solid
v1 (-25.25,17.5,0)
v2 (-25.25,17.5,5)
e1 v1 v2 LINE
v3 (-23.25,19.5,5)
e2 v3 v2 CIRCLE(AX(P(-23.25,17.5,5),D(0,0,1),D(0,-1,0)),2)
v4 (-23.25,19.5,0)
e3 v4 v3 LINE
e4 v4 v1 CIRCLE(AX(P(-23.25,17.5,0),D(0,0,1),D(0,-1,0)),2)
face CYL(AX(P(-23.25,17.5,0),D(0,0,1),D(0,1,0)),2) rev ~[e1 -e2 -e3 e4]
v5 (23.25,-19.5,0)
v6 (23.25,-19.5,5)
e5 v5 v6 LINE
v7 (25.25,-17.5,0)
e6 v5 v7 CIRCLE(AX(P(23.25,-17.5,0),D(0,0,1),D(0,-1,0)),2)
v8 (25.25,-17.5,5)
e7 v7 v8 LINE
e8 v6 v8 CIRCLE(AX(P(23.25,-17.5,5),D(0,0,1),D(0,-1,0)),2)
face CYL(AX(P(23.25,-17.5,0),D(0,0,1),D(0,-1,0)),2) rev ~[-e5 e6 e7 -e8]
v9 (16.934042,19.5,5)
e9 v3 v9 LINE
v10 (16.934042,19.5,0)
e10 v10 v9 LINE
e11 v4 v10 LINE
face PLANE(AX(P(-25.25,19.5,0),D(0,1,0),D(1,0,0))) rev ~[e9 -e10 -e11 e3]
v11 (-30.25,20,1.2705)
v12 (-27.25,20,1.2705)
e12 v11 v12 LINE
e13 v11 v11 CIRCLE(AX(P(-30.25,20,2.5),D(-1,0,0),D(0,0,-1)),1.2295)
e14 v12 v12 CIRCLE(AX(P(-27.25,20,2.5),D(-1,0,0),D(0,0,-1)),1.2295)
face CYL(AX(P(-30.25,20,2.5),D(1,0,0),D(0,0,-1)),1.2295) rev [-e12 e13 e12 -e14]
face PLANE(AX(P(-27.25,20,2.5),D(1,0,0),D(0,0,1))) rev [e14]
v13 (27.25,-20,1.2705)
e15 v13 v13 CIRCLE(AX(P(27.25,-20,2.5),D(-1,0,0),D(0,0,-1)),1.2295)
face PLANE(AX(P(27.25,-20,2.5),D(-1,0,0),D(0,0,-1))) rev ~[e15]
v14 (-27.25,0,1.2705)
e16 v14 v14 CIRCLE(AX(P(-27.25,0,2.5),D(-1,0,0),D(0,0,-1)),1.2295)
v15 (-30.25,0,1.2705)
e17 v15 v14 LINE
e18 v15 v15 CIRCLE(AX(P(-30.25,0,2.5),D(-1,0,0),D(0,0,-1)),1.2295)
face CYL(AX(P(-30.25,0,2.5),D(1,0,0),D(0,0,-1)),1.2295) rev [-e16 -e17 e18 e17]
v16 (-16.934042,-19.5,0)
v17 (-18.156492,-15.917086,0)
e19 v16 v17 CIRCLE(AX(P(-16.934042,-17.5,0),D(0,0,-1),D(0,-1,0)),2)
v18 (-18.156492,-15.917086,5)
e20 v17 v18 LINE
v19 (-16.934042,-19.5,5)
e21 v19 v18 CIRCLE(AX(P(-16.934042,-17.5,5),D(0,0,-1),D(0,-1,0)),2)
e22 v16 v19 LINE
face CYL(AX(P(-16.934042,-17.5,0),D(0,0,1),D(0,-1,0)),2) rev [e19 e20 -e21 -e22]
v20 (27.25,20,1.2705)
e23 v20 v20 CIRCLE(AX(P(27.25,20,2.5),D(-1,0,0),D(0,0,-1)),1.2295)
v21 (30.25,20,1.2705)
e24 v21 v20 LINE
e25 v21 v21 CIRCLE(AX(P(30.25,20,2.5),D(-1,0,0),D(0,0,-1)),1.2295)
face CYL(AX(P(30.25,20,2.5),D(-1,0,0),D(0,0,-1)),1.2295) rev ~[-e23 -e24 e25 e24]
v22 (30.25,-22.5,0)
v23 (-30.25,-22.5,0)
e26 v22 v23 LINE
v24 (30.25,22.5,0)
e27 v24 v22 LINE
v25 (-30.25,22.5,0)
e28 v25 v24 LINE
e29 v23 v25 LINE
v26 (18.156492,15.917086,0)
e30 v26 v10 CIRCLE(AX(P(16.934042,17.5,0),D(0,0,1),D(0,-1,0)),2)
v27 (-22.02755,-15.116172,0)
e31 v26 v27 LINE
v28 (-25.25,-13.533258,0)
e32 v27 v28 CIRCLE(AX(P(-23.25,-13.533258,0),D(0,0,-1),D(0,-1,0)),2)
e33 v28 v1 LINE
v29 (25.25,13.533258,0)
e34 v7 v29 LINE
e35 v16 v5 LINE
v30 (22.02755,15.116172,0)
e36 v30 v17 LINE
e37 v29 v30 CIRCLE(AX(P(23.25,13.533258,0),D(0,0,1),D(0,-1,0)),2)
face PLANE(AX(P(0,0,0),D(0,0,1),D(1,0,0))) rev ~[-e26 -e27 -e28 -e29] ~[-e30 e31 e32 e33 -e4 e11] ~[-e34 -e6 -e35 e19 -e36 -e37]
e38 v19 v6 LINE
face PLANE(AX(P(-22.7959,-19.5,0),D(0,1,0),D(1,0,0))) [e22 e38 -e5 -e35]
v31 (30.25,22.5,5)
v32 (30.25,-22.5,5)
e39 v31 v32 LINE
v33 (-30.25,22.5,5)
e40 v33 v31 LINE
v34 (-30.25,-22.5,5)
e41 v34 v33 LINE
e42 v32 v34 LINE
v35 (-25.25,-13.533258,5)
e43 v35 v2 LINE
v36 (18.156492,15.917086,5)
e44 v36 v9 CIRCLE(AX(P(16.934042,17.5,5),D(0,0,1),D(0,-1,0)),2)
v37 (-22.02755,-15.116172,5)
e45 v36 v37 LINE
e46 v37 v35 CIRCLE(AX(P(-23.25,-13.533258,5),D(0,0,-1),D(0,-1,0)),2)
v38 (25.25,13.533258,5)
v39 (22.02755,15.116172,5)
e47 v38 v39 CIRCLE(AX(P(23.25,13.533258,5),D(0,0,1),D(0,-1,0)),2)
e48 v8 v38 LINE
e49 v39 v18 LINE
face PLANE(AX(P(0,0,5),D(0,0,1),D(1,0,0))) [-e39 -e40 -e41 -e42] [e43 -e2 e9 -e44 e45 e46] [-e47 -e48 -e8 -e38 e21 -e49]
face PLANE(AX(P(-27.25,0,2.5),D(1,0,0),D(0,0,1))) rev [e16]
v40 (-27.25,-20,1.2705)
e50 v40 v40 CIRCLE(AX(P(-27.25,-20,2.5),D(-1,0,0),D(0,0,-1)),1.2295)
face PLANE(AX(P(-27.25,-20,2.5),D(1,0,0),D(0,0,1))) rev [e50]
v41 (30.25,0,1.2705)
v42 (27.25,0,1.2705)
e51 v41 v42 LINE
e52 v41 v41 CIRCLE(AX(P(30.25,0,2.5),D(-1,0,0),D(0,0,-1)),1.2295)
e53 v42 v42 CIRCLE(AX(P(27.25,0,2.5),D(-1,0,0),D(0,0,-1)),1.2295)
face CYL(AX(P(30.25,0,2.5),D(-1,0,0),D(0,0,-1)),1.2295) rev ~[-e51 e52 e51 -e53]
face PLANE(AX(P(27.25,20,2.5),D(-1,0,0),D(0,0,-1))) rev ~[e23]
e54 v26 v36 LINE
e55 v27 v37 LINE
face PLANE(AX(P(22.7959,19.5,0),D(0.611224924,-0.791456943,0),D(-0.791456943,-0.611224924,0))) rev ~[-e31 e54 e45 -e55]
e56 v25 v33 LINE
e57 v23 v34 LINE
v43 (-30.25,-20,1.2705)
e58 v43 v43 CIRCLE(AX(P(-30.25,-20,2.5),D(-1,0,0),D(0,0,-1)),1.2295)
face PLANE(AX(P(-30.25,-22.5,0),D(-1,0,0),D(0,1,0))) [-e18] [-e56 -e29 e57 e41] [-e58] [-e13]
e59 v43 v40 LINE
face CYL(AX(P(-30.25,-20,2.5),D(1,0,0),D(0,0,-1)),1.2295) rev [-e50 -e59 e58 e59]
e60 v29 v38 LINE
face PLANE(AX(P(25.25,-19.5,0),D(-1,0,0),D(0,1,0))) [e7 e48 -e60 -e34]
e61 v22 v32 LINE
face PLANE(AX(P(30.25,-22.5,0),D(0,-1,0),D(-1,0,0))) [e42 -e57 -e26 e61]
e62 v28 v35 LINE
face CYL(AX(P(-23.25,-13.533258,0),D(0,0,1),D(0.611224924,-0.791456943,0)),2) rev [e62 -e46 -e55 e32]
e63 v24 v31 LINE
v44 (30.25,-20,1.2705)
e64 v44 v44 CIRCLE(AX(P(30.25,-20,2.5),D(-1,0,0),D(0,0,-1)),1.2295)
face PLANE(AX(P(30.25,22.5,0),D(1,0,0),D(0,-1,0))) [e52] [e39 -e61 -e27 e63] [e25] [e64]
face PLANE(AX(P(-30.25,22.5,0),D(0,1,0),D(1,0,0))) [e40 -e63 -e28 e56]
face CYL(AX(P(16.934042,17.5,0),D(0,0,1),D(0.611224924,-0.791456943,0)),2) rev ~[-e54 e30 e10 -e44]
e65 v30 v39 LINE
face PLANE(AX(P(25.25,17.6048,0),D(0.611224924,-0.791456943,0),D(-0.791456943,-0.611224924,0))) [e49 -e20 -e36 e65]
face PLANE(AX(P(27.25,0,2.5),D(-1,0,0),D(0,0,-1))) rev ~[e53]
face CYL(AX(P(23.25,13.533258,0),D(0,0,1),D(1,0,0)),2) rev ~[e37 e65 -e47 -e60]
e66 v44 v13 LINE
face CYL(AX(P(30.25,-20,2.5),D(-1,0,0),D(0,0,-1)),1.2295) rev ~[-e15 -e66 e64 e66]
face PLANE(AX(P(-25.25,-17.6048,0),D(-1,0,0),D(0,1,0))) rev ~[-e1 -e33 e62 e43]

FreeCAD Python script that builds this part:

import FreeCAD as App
import Part
import Sketcher


def edges_at(feature, points):
    """Names of the edges that pass closest to the given points."""
    edges = feature.Shape.Edges
    near = lambda p: min(range(len(edges)), key=lambda i: edges[i].distToShape(Part.Vertex(*p))[0])
    return sorted({f"Edge{near(p) + 1}" for p in points})


def add_polygon(sketch, points):
    """Adds a closed chain of lines whose ends are joined by coincident constraints."""
    first, n = sketch.GeometryCount, len(points)
    for a, b in zip(points, points[1:] + points[:1]):
        sketch.addGeometry(Part.LineSegment(App.Vector(*a, 0), App.Vector(*b, 0)), False)
    for i in range(n):
        sketch.addConstraint(Sketcher.Constraint("Coincident", first + i, 2, first + (i + 1) % n, 1))

doc = App.newDocument("Part")
body = doc.addObject("PartDesign::Body", "Body")

sketch1 = body.newObject("Sketcher::SketchObject", "Sketch")
sketch1.AttachmentSupport = (doc.getObject("XY_Plane"), [""])
sketch1.MapMode = "FlatFace"
add_polygon(sketch1, [(30.25, 22.5), (-30.25, 22.5), (-30.25, -22.5), (30.25, -22.5)])
add_polygon(sketch1, [(25.25, -19.5), (-22.7959, -19.5), (25.25, 17.6048)])
add_polygon(sketch1, [(22.7959, 19.5), (-25.25, -17.6048), (-25.25, 19.5)])
sketch1.addConstraint([
    Sketcher.Constraint("Horizontal", 0),
    Sketcher.Constraint("Vertical", 1),
    Sketcher.Constraint("Horizontal", 2),
    Sketcher.Constraint("Vertical", 3),
    Sketcher.Constraint("Horizontal", 4),
    Sketcher.Constraint("Vertical", 6),
    Sketcher.Constraint("Vertical", 8),
    Sketcher.Constraint("Horizontal", 9),
    Sketcher.Constraint("Symmetric", 0, 2, 2, 2, -1, 1),
    Sketcher.Constraint("Symmetric", 5, 2, 7, 2, -1, 1),
    Sketcher.Constraint("Symmetric", 4, 2, 9, 2, -1, 1),
    Sketcher.Constraint("DistanceX", 0, 2, 0, 1, 60.5),
    Sketcher.Constraint("DistanceY", 1, 2, 4, 2, 3.0),
    Sketcher.Constraint("DistanceX", 5, 2, 3, 2, 5.0),
    Sketcher.Constraint("DistanceY", 1, 2, 1, 1, 45.0),
    Sketcher.Constraint("DistanceX", 4, 2, 4, 1, 48.046),
    Sketcher.Constraint("DistanceY", 6, 2, 6, 1, 37.1048),
])
pad1 = body.newObject("PartDesign::Pad", "Pad")
pad1.Profile = sketch1
pad1.Length = 5

sketch2 = body.newObject("Sketcher::SketchObject", "Sketch001")
sketch2.AttachmentSupport = (doc.getObject("YZ_Plane"), [""])
sketch2.MapMode = "FlatFace"
sketch2.AttachmentOffset = App.Placement(App.Vector(0, 0, 30.25), App.Rotation())
sketch2.addGeometry([
    Part.Circle(App.Vector(-20, 2.5, 0), App.Vector(0, 0, 1), 1.2295),
    Part.Circle(App.Vector(0, 2.5, 0), App.Vector(0, 0, 1), 1.2295),
    Part.Circle(App.Vector(20, 2.5, 0), App.Vector(0, 0, 1), 1.2295),
], False)
sketch2.addConstraint([
    Sketcher.Constraint("Equal", 0, 1),
    Sketcher.Constraint("Equal", 1, 2),
    Sketcher.Constraint("Symmetric", 0, 3, 2, 3, -2),
    Sketcher.Constraint("PointOnObject", 1, 3, -2),
    Sketcher.Constraint("Horizontal", 0, 3, 1, 3),
    Sketcher.Constraint("Diameter", 0, 2.459),
    Sketcher.Constraint("DistanceX", 0, 3, -1, 1, 20.0),
    Sketcher.Constraint("DistanceY", -1, 1, 0, 3, 2.5),
])
doc.recompute()
hole = body.newObject("PartDesign::Hole", "Hole")
hole.Profile = sketch2
hole.ThreadType = "None"
hole.Diameter = 2.459
hole.DepthType = "Dimension"
hole.Depth = 3
hole.DrillPoint = "Flat"
doc.recompute()

mirrored = body.newObject("PartDesign::Mirrored", "Mirrored")
mirrored.Originals = [hole]
mirrored.MirrorPlane = (doc.getObject("YZ_Plane"), [""])
body.Tip = mirrored
doc.recompute()

fillet = body.newObject("PartDesign::Fillet", "Fillet")
fillet.Base = (mirrored, edges_at(mirrored, [
    (-22.796, -19.5, 2.5),
    (-25.25, -17.605, 2.5),
    (25.25, 17.605, 2.5),
    (25.25, -19.5, 2.5),
    (-25.25, 19.5, 2.5),
    (22.796, 19.5, 2.5),
]))
fillet.Radius = 2

doc.recompute()
